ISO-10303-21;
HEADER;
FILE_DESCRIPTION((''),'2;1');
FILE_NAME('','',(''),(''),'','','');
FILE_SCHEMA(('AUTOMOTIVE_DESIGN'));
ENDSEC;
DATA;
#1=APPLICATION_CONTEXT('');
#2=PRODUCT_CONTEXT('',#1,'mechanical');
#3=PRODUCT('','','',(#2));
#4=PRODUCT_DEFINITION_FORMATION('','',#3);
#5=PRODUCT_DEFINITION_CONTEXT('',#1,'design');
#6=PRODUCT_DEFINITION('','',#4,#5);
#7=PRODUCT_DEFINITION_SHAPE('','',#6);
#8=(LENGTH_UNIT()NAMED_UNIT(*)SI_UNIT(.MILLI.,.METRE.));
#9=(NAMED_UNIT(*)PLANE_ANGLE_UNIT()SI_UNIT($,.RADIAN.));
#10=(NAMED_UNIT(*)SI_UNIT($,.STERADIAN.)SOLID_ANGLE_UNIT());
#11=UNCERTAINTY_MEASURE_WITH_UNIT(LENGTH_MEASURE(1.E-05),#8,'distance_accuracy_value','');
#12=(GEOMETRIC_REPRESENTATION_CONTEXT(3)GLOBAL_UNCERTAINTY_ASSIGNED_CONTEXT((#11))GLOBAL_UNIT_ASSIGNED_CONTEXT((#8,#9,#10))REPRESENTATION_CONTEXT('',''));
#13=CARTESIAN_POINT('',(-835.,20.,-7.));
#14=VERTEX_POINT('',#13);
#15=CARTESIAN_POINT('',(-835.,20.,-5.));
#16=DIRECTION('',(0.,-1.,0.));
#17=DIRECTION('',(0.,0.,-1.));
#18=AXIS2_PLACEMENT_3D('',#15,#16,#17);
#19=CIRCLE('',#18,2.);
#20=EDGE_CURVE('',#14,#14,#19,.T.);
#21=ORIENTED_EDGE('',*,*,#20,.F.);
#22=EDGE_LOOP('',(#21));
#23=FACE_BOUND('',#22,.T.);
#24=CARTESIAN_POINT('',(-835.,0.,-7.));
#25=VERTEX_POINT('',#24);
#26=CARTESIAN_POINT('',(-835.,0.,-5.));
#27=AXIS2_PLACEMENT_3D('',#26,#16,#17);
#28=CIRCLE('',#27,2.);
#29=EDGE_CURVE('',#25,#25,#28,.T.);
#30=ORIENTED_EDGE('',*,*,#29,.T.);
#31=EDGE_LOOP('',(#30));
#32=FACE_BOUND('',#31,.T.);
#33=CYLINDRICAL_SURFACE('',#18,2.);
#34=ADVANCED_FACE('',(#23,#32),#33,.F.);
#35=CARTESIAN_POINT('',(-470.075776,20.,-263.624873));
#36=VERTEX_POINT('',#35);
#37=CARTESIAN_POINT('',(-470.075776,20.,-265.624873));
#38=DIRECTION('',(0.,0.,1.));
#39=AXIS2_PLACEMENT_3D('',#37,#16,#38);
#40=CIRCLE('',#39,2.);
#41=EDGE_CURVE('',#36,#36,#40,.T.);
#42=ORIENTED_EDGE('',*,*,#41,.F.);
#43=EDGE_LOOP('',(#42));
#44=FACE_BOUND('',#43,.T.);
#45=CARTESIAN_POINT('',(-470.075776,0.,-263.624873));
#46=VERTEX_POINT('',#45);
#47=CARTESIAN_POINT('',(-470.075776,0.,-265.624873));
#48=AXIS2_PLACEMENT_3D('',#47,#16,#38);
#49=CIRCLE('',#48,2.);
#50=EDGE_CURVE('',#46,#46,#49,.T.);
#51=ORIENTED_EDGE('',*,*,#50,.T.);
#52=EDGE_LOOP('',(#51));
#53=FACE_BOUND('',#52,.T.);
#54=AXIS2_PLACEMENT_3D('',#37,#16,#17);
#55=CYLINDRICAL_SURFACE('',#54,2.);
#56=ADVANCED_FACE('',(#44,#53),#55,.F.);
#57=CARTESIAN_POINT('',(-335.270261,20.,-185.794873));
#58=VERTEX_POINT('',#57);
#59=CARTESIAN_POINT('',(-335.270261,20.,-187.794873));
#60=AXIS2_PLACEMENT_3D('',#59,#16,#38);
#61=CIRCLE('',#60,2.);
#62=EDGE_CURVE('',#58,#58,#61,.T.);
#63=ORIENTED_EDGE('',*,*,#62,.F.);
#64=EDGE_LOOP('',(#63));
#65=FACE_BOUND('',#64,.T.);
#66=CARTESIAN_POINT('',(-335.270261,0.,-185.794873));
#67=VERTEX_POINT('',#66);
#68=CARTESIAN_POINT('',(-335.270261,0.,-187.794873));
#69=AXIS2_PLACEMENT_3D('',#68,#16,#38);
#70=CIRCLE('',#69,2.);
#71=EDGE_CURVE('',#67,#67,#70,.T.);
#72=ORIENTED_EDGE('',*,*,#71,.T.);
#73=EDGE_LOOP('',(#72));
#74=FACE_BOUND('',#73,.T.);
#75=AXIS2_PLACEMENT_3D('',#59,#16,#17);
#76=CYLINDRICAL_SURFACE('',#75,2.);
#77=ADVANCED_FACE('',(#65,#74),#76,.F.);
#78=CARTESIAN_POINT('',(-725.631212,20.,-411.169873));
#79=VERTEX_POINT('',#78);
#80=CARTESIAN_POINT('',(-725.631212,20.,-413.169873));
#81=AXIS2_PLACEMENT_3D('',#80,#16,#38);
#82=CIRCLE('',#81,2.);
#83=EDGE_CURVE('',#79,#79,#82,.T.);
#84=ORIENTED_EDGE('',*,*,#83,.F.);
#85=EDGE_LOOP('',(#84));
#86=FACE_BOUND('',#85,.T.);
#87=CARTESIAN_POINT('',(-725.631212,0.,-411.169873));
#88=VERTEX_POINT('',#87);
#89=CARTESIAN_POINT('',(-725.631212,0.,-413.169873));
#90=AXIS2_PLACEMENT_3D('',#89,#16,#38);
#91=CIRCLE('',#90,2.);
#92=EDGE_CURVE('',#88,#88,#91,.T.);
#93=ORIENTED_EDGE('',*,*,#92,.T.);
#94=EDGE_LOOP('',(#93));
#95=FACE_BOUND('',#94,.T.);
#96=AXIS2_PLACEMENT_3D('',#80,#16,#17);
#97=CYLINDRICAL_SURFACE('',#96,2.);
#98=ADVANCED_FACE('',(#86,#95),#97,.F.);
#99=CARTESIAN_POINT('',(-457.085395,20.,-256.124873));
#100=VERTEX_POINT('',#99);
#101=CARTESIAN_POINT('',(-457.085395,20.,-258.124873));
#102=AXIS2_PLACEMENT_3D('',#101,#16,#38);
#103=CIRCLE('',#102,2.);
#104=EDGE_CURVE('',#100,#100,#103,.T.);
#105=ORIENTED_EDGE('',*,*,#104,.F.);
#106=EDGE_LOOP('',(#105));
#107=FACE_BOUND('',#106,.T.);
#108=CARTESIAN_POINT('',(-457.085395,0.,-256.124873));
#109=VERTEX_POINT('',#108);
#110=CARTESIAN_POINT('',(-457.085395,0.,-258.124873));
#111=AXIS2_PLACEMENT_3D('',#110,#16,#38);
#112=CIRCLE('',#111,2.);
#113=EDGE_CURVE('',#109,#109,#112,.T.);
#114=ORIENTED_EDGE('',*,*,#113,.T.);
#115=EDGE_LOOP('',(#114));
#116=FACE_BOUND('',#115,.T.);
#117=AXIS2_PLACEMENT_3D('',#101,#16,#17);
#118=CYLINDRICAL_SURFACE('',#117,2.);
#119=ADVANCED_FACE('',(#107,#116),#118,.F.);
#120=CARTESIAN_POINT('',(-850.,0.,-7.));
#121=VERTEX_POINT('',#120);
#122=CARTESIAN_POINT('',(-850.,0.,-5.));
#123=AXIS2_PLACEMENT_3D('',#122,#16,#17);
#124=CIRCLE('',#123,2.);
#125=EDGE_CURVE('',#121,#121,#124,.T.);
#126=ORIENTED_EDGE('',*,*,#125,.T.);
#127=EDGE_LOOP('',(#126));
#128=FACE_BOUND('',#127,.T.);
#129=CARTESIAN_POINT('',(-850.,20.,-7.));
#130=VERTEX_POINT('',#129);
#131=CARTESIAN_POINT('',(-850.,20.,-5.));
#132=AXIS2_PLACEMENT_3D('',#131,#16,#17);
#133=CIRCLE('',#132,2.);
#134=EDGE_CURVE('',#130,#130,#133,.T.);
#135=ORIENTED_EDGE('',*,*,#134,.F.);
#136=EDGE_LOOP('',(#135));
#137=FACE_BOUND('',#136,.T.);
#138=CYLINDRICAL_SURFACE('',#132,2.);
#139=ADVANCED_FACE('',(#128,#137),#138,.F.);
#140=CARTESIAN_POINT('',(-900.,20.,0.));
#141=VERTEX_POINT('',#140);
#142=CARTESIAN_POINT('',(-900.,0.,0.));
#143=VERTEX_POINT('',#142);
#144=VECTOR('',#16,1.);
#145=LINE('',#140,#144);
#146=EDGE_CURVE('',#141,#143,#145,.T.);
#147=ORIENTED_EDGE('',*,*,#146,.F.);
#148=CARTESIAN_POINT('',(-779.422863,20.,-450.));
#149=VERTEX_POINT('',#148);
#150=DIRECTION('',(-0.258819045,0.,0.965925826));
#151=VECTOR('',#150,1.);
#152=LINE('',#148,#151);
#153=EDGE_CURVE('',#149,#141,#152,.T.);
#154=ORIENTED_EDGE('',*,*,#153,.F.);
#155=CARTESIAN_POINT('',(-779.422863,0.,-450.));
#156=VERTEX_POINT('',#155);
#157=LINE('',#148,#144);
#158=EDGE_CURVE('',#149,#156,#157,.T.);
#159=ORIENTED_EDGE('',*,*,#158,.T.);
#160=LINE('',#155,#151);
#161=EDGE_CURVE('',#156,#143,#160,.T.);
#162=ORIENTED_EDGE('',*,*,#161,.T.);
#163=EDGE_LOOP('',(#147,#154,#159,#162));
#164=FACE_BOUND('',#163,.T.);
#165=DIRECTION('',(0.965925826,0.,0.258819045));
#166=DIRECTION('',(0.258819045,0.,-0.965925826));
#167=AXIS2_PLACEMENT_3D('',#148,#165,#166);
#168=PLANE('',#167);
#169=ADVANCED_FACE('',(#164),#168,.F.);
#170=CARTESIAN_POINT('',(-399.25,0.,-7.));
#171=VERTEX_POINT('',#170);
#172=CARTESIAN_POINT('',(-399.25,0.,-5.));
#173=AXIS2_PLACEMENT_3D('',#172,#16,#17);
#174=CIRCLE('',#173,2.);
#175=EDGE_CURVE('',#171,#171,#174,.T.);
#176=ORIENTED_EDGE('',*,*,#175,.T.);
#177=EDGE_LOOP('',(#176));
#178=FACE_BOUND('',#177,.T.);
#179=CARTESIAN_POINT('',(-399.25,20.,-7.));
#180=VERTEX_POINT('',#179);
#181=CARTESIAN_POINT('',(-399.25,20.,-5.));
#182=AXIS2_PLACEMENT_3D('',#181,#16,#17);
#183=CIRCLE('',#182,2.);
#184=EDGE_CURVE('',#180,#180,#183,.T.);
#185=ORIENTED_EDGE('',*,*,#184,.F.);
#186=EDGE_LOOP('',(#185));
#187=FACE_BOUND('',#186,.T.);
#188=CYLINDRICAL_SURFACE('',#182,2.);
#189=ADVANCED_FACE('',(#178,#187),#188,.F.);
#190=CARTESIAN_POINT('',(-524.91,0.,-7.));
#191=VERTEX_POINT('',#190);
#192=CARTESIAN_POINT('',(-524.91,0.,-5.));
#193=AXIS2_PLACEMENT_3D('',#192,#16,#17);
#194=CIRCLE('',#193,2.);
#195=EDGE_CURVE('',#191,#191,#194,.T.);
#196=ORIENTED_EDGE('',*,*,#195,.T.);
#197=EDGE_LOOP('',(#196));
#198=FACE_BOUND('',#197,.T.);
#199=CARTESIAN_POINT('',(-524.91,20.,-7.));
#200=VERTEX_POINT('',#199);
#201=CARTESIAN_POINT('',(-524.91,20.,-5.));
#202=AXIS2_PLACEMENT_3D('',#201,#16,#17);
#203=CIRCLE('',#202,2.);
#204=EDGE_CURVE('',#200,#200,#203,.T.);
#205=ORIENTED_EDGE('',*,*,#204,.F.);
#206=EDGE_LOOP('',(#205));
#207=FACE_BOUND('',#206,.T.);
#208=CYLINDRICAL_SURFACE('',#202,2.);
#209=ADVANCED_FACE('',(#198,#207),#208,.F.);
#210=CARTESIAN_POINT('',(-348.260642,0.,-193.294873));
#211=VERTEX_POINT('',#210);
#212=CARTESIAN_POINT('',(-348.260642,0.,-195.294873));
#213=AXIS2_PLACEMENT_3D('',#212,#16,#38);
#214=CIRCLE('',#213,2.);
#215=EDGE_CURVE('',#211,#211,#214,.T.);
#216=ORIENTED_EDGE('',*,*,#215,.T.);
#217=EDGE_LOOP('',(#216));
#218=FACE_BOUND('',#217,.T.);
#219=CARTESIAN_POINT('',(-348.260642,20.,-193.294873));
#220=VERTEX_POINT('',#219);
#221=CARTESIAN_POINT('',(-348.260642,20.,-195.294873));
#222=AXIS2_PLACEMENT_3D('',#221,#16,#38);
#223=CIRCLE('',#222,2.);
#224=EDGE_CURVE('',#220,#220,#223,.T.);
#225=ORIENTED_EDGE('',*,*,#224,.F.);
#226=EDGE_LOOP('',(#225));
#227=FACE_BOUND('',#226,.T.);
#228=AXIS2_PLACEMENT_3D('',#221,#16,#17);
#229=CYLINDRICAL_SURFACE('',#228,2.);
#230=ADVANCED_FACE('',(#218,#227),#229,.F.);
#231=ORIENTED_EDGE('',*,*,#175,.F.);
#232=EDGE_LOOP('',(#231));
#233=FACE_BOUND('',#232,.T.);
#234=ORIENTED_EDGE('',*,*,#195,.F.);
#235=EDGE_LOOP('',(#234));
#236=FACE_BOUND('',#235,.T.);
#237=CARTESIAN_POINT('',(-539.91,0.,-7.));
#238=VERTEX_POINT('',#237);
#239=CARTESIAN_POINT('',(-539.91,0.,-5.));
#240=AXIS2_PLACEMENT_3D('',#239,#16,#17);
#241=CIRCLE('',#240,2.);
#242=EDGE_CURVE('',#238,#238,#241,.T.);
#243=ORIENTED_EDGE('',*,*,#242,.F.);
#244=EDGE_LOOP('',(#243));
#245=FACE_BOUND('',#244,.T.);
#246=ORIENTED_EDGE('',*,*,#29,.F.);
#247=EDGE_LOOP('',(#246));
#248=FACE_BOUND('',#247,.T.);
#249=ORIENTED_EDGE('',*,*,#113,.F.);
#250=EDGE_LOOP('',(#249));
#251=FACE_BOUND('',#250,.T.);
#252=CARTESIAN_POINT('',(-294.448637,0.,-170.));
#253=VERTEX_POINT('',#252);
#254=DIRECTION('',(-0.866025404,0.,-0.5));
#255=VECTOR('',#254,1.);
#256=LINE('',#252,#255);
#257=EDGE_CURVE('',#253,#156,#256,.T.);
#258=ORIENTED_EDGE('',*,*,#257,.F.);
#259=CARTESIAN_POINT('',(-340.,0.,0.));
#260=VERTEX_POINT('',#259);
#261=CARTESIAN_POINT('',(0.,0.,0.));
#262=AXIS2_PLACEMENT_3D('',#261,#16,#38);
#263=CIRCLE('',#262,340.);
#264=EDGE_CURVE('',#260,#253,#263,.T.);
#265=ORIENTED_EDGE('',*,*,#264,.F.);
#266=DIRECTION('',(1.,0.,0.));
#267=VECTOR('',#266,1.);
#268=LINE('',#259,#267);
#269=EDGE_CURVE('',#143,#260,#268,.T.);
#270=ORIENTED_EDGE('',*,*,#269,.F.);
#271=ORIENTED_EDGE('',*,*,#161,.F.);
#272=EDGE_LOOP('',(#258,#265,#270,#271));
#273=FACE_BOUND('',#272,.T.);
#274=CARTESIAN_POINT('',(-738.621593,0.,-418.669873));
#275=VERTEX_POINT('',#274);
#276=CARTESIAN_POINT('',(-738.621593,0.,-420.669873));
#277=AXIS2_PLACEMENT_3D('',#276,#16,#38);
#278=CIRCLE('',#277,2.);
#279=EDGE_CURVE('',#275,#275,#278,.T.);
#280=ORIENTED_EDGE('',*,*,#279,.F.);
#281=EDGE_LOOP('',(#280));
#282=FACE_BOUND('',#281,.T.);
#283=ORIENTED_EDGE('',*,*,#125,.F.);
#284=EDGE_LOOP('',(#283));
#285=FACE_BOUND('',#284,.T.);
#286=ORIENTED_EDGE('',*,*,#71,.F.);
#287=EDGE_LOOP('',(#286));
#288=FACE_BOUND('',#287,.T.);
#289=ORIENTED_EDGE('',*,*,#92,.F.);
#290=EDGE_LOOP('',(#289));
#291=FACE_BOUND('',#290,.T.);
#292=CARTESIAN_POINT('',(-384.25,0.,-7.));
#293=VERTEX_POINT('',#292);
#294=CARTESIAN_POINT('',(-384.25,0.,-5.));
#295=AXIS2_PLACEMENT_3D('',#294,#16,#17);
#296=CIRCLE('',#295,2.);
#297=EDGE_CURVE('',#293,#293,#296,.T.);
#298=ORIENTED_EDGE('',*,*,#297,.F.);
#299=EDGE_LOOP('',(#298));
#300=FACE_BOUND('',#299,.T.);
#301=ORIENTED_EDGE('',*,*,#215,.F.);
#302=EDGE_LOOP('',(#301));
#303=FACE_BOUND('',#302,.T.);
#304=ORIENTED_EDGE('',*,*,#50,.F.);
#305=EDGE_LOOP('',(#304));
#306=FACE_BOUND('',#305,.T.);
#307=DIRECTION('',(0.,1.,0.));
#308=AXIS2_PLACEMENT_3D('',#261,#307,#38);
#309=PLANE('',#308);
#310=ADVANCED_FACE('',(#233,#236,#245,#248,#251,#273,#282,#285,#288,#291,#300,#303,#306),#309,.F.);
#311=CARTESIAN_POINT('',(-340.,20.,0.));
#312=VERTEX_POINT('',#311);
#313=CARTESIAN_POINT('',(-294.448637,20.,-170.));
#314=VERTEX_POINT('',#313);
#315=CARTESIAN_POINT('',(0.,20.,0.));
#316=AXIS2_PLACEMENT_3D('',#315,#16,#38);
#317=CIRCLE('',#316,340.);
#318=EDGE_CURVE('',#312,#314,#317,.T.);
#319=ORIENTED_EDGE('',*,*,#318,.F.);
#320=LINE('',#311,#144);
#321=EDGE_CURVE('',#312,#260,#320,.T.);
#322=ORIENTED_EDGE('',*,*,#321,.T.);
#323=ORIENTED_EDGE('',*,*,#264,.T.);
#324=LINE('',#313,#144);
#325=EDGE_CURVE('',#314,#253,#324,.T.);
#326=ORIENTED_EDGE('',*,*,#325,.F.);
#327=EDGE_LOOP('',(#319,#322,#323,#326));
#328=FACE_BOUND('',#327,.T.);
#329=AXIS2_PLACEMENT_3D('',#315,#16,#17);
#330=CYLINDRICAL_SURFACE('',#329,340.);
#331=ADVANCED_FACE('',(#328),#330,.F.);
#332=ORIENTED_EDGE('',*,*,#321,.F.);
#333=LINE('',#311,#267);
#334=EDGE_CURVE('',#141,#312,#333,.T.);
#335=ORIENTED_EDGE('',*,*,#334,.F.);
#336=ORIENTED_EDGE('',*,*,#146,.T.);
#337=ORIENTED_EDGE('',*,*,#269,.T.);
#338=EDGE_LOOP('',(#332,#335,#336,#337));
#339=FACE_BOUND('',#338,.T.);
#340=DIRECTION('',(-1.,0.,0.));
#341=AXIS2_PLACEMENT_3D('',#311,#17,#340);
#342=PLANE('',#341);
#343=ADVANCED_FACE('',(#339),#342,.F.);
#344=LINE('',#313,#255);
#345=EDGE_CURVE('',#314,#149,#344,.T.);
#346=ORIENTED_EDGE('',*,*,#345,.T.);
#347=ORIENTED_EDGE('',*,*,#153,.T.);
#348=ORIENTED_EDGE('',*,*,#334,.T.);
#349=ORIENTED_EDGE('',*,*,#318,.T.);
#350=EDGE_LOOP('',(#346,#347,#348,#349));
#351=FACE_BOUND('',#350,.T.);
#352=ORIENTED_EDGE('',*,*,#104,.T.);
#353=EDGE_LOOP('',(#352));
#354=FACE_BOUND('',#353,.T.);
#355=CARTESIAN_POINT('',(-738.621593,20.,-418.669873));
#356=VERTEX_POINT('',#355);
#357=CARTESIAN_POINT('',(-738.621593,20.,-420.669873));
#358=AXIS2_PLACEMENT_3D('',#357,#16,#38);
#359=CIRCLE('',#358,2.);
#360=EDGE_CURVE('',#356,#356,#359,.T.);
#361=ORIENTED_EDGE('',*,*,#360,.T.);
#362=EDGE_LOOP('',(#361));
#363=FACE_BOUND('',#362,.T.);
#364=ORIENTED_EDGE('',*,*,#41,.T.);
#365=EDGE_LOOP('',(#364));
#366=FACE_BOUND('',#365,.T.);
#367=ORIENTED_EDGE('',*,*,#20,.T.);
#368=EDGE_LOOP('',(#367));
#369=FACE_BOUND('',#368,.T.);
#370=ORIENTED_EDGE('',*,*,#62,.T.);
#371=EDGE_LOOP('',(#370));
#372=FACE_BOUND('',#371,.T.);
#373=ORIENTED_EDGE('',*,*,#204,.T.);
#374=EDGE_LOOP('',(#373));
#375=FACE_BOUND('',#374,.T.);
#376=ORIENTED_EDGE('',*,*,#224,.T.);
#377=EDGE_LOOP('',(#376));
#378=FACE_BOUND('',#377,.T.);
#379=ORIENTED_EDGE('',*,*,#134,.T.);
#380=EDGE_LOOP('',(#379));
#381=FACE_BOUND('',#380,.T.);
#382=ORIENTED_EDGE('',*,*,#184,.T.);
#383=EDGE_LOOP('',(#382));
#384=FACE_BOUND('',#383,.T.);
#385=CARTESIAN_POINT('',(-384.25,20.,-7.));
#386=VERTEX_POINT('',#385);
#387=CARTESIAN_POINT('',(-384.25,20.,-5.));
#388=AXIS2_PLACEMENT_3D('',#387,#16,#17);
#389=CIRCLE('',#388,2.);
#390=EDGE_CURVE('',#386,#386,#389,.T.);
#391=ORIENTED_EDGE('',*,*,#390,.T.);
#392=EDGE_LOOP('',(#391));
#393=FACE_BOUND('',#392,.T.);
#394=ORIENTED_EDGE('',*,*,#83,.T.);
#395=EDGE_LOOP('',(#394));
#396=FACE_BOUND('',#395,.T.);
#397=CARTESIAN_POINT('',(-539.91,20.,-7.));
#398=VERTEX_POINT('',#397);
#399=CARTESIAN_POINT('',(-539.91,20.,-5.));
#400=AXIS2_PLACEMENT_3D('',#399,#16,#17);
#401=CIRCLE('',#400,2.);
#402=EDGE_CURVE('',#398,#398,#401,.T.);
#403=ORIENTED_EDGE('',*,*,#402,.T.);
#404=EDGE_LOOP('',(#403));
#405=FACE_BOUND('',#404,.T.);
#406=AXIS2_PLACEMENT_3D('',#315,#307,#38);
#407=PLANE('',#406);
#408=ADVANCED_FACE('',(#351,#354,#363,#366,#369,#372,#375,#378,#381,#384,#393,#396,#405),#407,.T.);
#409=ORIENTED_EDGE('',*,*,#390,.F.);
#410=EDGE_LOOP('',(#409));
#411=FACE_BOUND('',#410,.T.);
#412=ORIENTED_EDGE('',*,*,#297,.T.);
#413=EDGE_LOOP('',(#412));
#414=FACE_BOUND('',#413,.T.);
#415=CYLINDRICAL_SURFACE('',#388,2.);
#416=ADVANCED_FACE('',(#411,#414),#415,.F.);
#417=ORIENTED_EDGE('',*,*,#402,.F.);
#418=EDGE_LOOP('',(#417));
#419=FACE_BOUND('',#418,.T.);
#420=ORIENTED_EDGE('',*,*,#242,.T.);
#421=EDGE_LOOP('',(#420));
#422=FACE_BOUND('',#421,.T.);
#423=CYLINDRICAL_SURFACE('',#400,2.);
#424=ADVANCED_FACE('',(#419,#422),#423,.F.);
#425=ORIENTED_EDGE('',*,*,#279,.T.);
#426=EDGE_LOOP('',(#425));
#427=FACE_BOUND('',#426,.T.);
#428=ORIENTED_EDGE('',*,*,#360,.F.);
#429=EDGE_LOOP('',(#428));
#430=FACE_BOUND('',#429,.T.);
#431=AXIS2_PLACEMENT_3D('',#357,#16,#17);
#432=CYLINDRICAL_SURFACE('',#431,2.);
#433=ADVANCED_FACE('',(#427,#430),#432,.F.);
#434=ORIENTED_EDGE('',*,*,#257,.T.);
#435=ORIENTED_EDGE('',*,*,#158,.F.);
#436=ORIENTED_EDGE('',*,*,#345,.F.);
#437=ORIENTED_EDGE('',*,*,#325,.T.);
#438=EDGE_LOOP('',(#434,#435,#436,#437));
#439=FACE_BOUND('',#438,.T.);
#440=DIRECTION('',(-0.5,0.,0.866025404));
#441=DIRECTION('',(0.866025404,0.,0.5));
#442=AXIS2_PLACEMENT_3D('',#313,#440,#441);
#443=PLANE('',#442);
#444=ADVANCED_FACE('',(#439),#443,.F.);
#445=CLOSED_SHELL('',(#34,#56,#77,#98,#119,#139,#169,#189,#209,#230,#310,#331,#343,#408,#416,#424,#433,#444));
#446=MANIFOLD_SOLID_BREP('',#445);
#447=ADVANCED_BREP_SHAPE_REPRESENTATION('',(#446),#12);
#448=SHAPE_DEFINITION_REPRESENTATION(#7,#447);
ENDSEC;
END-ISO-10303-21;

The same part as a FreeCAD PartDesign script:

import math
import FreeCAD as App
import Part
import Sketcher

V = App.Vector
Q = App.Units.Quantity

doc = App.newDocument("Part")
body = doc.addObject("PartDesign::Body", "Body")

sketch1 = doc.addObject("Sketcher::SketchObject", "Sketch")
body.addObject(sketch1)
sketch1.AttachmentSupport = (doc.XZ_Plane, [""])
sketch1.MapMode = "FlatFace"
sketch1.addGeometry(Part.LineSegment(V(-900, 0, 0), V(-340, 0, 0)), False)
sketch1.addGeometry(Part.ArcOfCircle(Part.Circle(V(0, 0, 0), V(0, 0, 1), 340), math.radians(-180), math.radians(-150)), False)
sketch1.addGeometry(Part.LineSegment(V(-294.448637, -170, 0), V(-779.422863, -450, 0)), False)
sketch1.addGeometry(Part.LineSegment(V(-779.422863, -450, 0), V(-900, 0, 0)), False)
sketch1.addConstraint(Sketcher.Constraint("Coincident", 0, 2, 1, 1))
sketch1.addConstraint(Sketcher.Constraint("Coincident", 1, 2, 2, 1))
sketch1.addConstraint(Sketcher.Constraint("Coincident", 2, 2, 3, 1))
sketch1.addConstraint(Sketcher.Constraint("Coincident", 3, 2, 0, 1))
sketch1.addConstraint(Sketcher.Constraint("Horizontal", 0))
sketch1.addConstraint(Sketcher.Constraint("Coincident", 1, 3, -1, 1))
sketch1.addConstraint(Sketcher.Constraint("PointOnObject", 0, 2, -1))
sketch1.addConstraint(Sketcher.Constraint("Radius", 1, 340.0))
sketch1.addConstraint(Sketcher.Constraint("DistanceX", 0, 1, 0, 2, 560.0))
sketch1.addConstraint(Sketcher.Constraint("Angle", 2, Q("-150 deg")))
sketch1.addConstraint(Sketcher.Constraint("Angle", 3, Q("105 deg")))
sketch1.addConstraint(Sketcher.Constraint("Distance", 2, 560.0))
pad1 = doc.addObject("PartDesign::Pad", "Pad")
body.addObject(pad1)
pad1.Profile = sketch1
pad1.Length = 20
pad1.Reversed = True

sketch2 = doc.addObject("Sketcher::SketchObject", "Sketch001")
body.addObject(sketch2)
sketch2.AttachmentSupport = (doc.XZ_Plane, [""])
sketch2.MapMode = "FlatFace"
sketch2.addGeometry(Part.Circle(V(-850, -5, 0), V(0, 0, 1), 2), False)
sketch2.addGeometry(Part.Circle(V(-835, -5, 0), V(0, 0, 1), 2), False)
sketch2.addGeometry(Part.Circle(V(-539.91, -5, 0), V(0, 0, 1), 2), False)
sketch2.addGeometry(Part.Circle(V(-524.91, -5, 0), V(0, 0, 1), 2), False)
sketch2.addGeometry(Part.Circle(V(-399.25, -5, 0), V(0, 0, 1), 2), False)
sketch2.addGeometry(Part.Circle(V(-384.25, -5, 0), V(0, 0, 1), 2), False)
sketch2.addGeometry(Part.Circle(V(-348.260642, -195.294873, 0), V(0, 0, 1), 2), False)
sketch2.addGeometry(Part.Circle(V(-335.270261, -187.794873, 0), V(0, 0, 1), 2), False)
sketch2.addGeometry(Part.Circle(V(-457.085395, -258.124873, 0), V(0, 0, 1), 2), False)
sketch2.addGeometry(Part.Circle(V(-470.075776, -265.624873, 0), V(0, 0, 1), 2), False)
sketch2.addGeometry(Part.Circle(V(-725.631212, -413.169873, 0), V(0, 0, 1), 2), False)
sketch2.addGeometry(Part.Circle(V(-738.621593, -420.669873, 0), V(0, 0, 1), 2), False)
sketch2.addConstraint(Sketcher.Constraint("Equal", 0, 1))
sketch2.addConstraint(Sketcher.Constraint("Equal", 1, 2))
sketch2.addConstraint(Sketcher.Constraint("Equal", 2, 3))
sketch2.addConstraint(Sketcher.Constraint("Equal", 3, 4))
sketch2.addConstraint(Sketcher.Constraint("Equal", 4, 5))
sketch2.addConstraint(Sketcher.Constraint("Equal", 5, 6))
sketch2.addConstraint(Sketcher.Constraint("Equal", 6, 7))
sketch2.addConstraint(Sketcher.Constraint("Equal", 7, 8))
sketch2.addConstraint(Sketcher.Constraint("Equal", 8, 9))
sketch2.addConstraint(Sketcher.Constraint("Equal", 9, 10))
sketch2.addConstraint(Sketcher.Constraint("Equal", 10, 11))
sketch2.addConstraint(Sketcher.Constraint("Horizontal", 0, 3, 1, 3))
sketch2.addConstraint(Sketcher.Constraint("Horizontal", 1, 3, 2, 3))
sketch2.addConstraint(Sketcher.Constraint("Horizontal", 2, 3, 3, 3))
sketch2.addConstraint(Sketcher.Constraint("Horizontal", 3, 3, 4, 3))
sketch2.addConstraint(Sketcher.Constraint("Horizontal", 4, 3, 5, 3))
sketch2.addConstraint(Sketcher.Constraint("Diameter", 0, 4.0))
sketch2.addConstraint(Sketcher.Constraint("DistanceX", 0, 3, -1, 1, 850.0))
sketch2.addConstraint(Sketcher.Constraint("DistanceY", 0, 3, -1, 1, 5.0))
sketch2.addConstraint(Sketcher.Constraint("DistanceX", 1, 3, -1, 1, 835.0))
sketch2.addConstraint(Sketcher.Constraint("DistanceX", 2, 3, 3, 3, 15.0))
sketch2.addConstraint(Sketcher.Constraint("DistanceX", 4, 3, 5, 3, 15.0))
sketch2.addConstraint(Sketcher.Constraint("DistanceY", 6, 3, 7, 3, 7.5))
sketch2.addConstraint(Sketcher.Constraint("DistanceY", 9, 3, 8, 3, 7.5))
sketch2.addConstraint(Sketcher.Constraint("DistanceY", 11, 3, 10, 3, 7.5))
sketch2.addConstraint(Sketcher.Constraint("DistanceX", 2, 3, -1, 1, 539.91))
sketch2.addConstraint(Sketcher.Constraint("DistanceX", 4, 3, -1, 1, 399.25))
sketch2.addConstraint(Sketcher.Constraint("DistanceY", 8, 3, 6, 3, 62.83))
sketch2.addConstraint(Sketcher.Constraint("DistanceY", 10, 3, 9, 3, 147.545))
sketch2.addConstraint(Sketcher.Constraint("DistanceX", 11, 3, 8, 3, 281.536199))
sketch2.addConstraint(Sketcher.Constraint("DistanceX", 7, 3, -1, 1, 335.270261))
sketch2.addConstraint(Sketcher.Constraint("DistanceX", 6, 3, 7, 3, 12.990381))
sketch2.addConstraint(Sketcher.Constraint("DistanceX", 9, 3, 8, 3, 12.990381))
sketch2.addConstraint(Sketcher.Constraint("DistanceX", 10, 3, 6, 3, 377.37057))
sketch2.addConstraint(Sketcher.Constraint("DistanceX", 11, 3, 10, 3, 12.990381))
sketch2.addConstraint(Sketcher.Constraint("DistanceY", 6, 3, -1, 1, 195.294873))
pocket1 = doc.addObject("PartDesign::Pocket", "Pocket")
body.addObject(pocket1)
pocket1.Profile = sketch2
pocket1.Length = 20

doc.recompute()
